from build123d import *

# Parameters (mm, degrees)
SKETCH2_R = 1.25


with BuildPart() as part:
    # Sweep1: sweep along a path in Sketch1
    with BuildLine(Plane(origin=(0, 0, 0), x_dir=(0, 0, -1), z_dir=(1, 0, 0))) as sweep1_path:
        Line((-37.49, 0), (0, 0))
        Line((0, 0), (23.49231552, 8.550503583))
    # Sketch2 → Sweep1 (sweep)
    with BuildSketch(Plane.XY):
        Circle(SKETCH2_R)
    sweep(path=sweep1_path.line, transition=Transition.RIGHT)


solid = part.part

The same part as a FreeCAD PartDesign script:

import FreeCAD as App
import Part
import Sketcher

V = App.Vector
Q = App.Units.Quantity

doc = App.newDocument("Part")
body = doc.addObject("PartDesign::Body", "Body")

sketch1 = doc.addObject("Sketcher::SketchObject", "Sketch")
body.addObject(sketch1)
sketch1.AttachmentSupport = (doc.XY_Plane, [""])
sketch1.MapMode = "FlatFace"
sketch1.addGeometry(Part.Circle(V(0, 0, 0), V(0, 0, 1), 1.25), False)
sketch1.addConstraint([
    Sketcher.Constraint("Coincident", 0, 3, -1, 1),
    Sketcher.Constraint("Diameter", 0, 2.5),
])

sketch2 = doc.addObject("Sketcher::SketchObject", "Sketch001")
body.addObject(sketch2)
sketch2.AttachmentSupport = (doc.YZ_Plane, [""])
sketch2.MapMode = "FlatFace"
sketch2.addGeometry([
    Part.LineSegment(V(0, 37.49, 0), V(0, 0, 0)),
    Part.LineSegment(V(0, 0, 0), V(8.550504, -23.492316, 0)),
], False)
sketch2.addConstraint([
    Sketcher.Constraint("Coincident", 0, 2, 1, 1),
    Sketcher.Constraint("Vertical", 0),
    Sketcher.Constraint("Coincident", 0, 2, -1, 1),
    Sketcher.Constraint("Angle", 1, Q("-70 deg")),
    Sketcher.Constraint("Distance", 1, 25.0),
    Sketcher.Constraint("DistanceY", 0, 2, 0, 1, 37.49),
])
doc.recompute()

additivepipe = doc.addObject("PartDesign::AdditivePipe", "AdditivePipe")
body.addObject(additivepipe)
additivepipe.Profile = sketch1
additivepipe.Spine = (sketch2, ["Edge1", "Edge2"])
additivepipe.Transition = "Right corner"

doc.recompute()
